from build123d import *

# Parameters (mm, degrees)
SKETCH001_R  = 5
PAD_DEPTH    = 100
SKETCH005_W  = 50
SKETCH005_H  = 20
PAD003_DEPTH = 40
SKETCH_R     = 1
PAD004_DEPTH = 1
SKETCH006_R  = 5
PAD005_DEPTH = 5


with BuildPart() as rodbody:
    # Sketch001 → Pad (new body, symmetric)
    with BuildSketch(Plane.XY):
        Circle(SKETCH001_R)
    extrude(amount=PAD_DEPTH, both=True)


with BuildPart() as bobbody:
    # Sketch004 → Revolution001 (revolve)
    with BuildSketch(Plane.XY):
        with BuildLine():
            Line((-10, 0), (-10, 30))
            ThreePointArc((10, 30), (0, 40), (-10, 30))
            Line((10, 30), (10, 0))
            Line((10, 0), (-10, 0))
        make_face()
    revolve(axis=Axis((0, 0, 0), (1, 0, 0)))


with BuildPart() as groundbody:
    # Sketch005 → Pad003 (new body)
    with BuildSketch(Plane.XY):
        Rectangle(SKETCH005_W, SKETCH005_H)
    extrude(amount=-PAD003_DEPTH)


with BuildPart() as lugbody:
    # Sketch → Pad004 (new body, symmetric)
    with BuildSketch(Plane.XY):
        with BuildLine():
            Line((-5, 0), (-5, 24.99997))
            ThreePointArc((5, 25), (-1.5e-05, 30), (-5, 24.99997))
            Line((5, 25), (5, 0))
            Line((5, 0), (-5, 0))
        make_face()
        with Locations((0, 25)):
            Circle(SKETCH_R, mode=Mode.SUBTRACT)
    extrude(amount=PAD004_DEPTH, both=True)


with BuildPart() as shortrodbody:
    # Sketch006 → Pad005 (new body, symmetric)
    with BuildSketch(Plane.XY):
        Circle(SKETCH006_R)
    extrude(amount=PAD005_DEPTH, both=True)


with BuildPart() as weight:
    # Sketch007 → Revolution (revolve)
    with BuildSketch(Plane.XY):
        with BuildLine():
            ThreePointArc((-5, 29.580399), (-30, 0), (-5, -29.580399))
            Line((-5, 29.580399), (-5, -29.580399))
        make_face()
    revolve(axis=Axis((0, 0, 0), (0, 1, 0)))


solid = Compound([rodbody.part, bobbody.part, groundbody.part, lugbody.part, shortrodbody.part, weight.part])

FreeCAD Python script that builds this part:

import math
import FreeCAD as App
import Part
import Sketcher
from FreeCAD import Vector

doc = App.newDocument("Part")
body = doc.addObject("PartDesign::Body", "Body")

# Sketch on XY plane
sketch1 = body.newObject("Sketcher::SketchObject", "Sketch")
sketch1.AttachmentSupport = (doc.getObject("XY_Plane"), [""])
sketch1.MapMode = "FlatFace"
sketch1.addGeometry(Part.Circle(Vector(0, 0, 0), Vector(0, 0, 1), 5), False)
sketch1.addConstraint(Sketcher.Constraint("Coincident", 0, 3, -1, 1))
sketch1.addConstraint(Sketcher.Constraint("Diameter", 0, 10.0))
pad1 = body.newObject("PartDesign::Pad", "Pad")
pad1.Profile = sketch1
pad1.Length = 200
pad1.Midplane = True
body2 = doc.addObject("PartDesign::Body", "Body001")

# Sketch on XY plane
sketch2 = body2.newObject("Sketcher::SketchObject", "Sketch001")
sketch2.AttachmentSupport = (doc.getObject("XY_Plane001"), [""])
sketch2.MapMode = "FlatFace"
sketch2.addGeometry(Part.LineSegment(Vector(-10, 30, 0), Vector(-10, 0, 0)), False)
sketch2.addGeometry(Part.LineSegment(Vector(-10, 0, 0), Vector(10, 0, 0)), False)
sketch2.addGeometry(Part.LineSegment(Vector(10, 0, 0), Vector(10, 30, 0)), False)
sketch2.addGeometry(Part.ArcOfCircle(Part.Circle(Vector(0, 30, 0), Vector(0, 0, 1), 10), math.radians(0), math.radians(180)), False)
sketch2.addConstraint(Sketcher.Constraint("Coincident", 0, 2, 1, 1))
sketch2.addConstraint(Sketcher.Constraint("Coincident", 1, 2, 2, 1))
sketch2.addConstraint(Sketcher.Constraint("Tangent", 2, 2, 3, 1))
sketch2.addConstraint(Sketcher.Constraint("Tangent", 3, 2, 0, 1))
sketch2.addConstraint(Sketcher.Constraint("Vertical", 0))
sketch2.addConstraint(Sketcher.Constraint("Horizontal", 1))
sketch2.addConstraint(Sketcher.Constraint("Vertical", 2))
sketch2.addConstraint(Sketcher.Constraint("Symmetric", 0, 2, 1, 2, -1, 1))
sketch2.addConstraint(Sketcher.Constraint("Radius", 3, 10.0))
sketch2.addConstraint(Sketcher.Constraint("DistanceY", 0, 2, 0, 1, 30.0))
revolution = body2.newObject("PartDesign::Revolution", "Revolution")
revolution.Profile = sketch2
revolution.ReferenceAxis = (sketch2, ["H_Axis"])
revolution.Angle = 360
body3 = doc.addObject("PartDesign::Body", "Body002")

# Sketch on XY plane
sketch3 = body3.newObject("Sketcher::SketchObject", "Sketch002")
sketch3.AttachmentSupport = (doc.getObject("XY_Plane002"), [""])
sketch3.MapMode = "FlatFace"
sketch3.addGeometry(Part.LineSegment(Vector(-25, 10, 0), Vector(-25, -10, 0)), False)
sketch3.addGeometry(Part.LineSegment(Vector(-25, -10, 0), Vector(25, -10, 0)), False)
sketch3.addGeometry(Part.LineSegment(Vector(25, -10, 0), Vector(25, 10, 0)), False)
sketch3.addGeometry(Part.LineSegment(Vector(25, 10, 0), Vector(-25, 10, 0)), False)
sketch3.addConstraint(Sketcher.Constraint("Coincident", 0, 2, 1, 1))
sketch3.addConstraint(Sketcher.Constraint("Coincident", 1, 2, 2, 1))
sketch3.addConstraint(Sketcher.Constraint("Coincident", 2, 2, 3, 1))
sketch3.addConstraint(Sketcher.Constraint("Coincident", 3, 2, 0, 1))
sketch3.addConstraint(Sketcher.Constraint("Vertical", 0))
sketch3.addConstraint(Sketcher.Constraint("Horizontal", 1))
sketch3.addConstraint(Sketcher.Constraint("Vertical", 2))
sketch3.addConstraint(Sketcher.Constraint("Horizontal", 3))
sketch3.addConstraint(Sketcher.Constraint("Symmetric", 0, 2, 2, 2, -1, 1))
sketch3.addConstraint(Sketcher.Constraint("DistanceX", 1, 1, 1, 2, 50.0))
sketch3.addConstraint(Sketcher.Constraint("DistanceY", 0, 2, 0, 1, 20.0))
pad2 = body3.newObject("PartDesign::Pad", "Pad001")
pad2.Profile = sketch3
pad2.Length = 40
pad2.Reversed = True
body4 = doc.addObject("PartDesign::Body", "Body003")

# Sketch on XY plane
sketch4 = body4.newObject("Sketcher::SketchObject", "Sketch003")
sketch4.AttachmentSupport = (doc.getObject("XY_Plane003"), [""])
sketch4.MapMode = "FlatFace"
sketch4.addGeometry(Part.LineSegment(Vector(-5, 25, 0), Vector(-5, 0, 0)), False)
sketch4.addGeometry(Part.LineSegment(Vector(-5, 0, 0), Vector(5, 0, 0)), False)
sketch4.addGeometry(Part.LineSegment(Vector(5, 0, 0), Vector(5, 25, 0)), False)
sketch4.addGeometry(Part.ArcOfCircle(Part.Circle(Vector(0, 25, 0), Vector(0, 0, 1), 5), math.radians(0), math.radians(180)), False)
sketch4.addGeometry(Part.Circle(Vector(0, 25, 0), Vector(0, 0, 1), 1), False)
sketch4.addConstraint(Sketcher.Constraint("Coincident", 0, 2, 1, 1))
sketch4.addConstraint(Sketcher.Constraint("Coincident", 1, 2, 2, 1))
sketch4.addConstraint(Sketcher.Constraint("Tangent", 2, 2, 3, 1))
sketch4.addConstraint(Sketcher.Constraint("Coincident", 3, 2, 0, 1))
sketch4.addConstraint(Sketcher.Constraint("Vertical", 0))
sketch4.addConstraint(Sketcher.Constraint("Horizontal", 1))
sketch4.addConstraint(Sketcher.Constraint("Vertical", 2))
sketch4.addConstraint(Sketcher.Constraint("Coincident", 4, 3, 3, 3))
sketch4.addConstraint(Sketcher.Constraint("Symmetric", 0, 2, 1, 2, -1, 1))
sketch4.addConstraint(Sketcher.Constraint("Diameter", 4, 2.0))
sketch4.addConstraint(Sketcher.Constraint("Radius", 3, 5.0))
sketch4.addConstraint(Sketcher.Constraint("DistanceY", 2, 1, 2, 2, 25.0))
sketch4.addConstraint(Sketcher.Constraint("DistanceY", 0, 2, 0, 1, 24.99997))
pad3 = body4.newObject("PartDesign::Pad", "Pad002")
pad3.Profile = sketch4
pad3.Length = 2
pad3.Midplane = True
body5 = doc.addObject("PartDesign::Body", "Body004")

# Sketch on XY plane
sketch5 = body5.newObject("Sketcher::SketchObject", "Sketch004")
sketch5.AttachmentSupport = (doc.getObject("XY_Plane004"), [""])
sketch5.MapMode = "FlatFace"
sketch5.addGeometry(Part.Circle(Vector(0, 0, 0), Vector(0, 0, 1), 5), False)
sketch5.addConstraint(Sketcher.Constraint("Coincident", 0, 3, -1, 1))
sketch5.addConstraint(Sketcher.Constraint("Diameter", 0, 10.0))
pad4 = body5.newObject("PartDesign::Pad", "Pad003")
pad4.Profile = sketch5
pad4.Length = 10
pad4.Midplane = True
body6 = doc.addObject("PartDesign::Body", "Body005")

# Sketch on XY plane
sketch6 = body6.newObject("Sketcher::SketchObject", "Sketch005")
sketch6.AttachmentSupport = (doc.getObject("XY_Plane005"), [""])
sketch6.MapMode = "FlatFace"
sketch6.addGeometry(Part.ArcOfCircle(Part.Circle(Vector(0, 0, 0), Vector(0, 0, 1), 30), math.radians(100), math.radians(260)), False)
sketch6.addGeometry(Part.LineSegment(Vector(-5, -30, 0), Vector(-5, 30, 0)), False)
sketch6.addConstraint(Sketcher.Constraint("Coincident", 0, 1, 1, 2))
sketch6.addConstraint(Sketcher.Constraint("Coincident", 1, 1, 0, 2))
sketch6.addConstraint(Sketcher.Constraint("Vertical", 1))
sketch6.addConstraint(Sketcher.Constraint("Coincident", 0, 3, -1, 1))
sketch6.addConstraint(Sketcher.Constraint("Radius", 0, 30.0))
sketch6.addConstraint(Sketcher.Constraint("DistanceX", 0, 1, -1, 1, 5.0))
revolution2 = body6.newObject("PartDesign::Revolution", "Revolution001")
revolution2.Profile = sketch6
revolution2.ReferenceAxis = (sketch6, ["V_Axis"])
revolution2.Angle = 360

doc.recompute()
